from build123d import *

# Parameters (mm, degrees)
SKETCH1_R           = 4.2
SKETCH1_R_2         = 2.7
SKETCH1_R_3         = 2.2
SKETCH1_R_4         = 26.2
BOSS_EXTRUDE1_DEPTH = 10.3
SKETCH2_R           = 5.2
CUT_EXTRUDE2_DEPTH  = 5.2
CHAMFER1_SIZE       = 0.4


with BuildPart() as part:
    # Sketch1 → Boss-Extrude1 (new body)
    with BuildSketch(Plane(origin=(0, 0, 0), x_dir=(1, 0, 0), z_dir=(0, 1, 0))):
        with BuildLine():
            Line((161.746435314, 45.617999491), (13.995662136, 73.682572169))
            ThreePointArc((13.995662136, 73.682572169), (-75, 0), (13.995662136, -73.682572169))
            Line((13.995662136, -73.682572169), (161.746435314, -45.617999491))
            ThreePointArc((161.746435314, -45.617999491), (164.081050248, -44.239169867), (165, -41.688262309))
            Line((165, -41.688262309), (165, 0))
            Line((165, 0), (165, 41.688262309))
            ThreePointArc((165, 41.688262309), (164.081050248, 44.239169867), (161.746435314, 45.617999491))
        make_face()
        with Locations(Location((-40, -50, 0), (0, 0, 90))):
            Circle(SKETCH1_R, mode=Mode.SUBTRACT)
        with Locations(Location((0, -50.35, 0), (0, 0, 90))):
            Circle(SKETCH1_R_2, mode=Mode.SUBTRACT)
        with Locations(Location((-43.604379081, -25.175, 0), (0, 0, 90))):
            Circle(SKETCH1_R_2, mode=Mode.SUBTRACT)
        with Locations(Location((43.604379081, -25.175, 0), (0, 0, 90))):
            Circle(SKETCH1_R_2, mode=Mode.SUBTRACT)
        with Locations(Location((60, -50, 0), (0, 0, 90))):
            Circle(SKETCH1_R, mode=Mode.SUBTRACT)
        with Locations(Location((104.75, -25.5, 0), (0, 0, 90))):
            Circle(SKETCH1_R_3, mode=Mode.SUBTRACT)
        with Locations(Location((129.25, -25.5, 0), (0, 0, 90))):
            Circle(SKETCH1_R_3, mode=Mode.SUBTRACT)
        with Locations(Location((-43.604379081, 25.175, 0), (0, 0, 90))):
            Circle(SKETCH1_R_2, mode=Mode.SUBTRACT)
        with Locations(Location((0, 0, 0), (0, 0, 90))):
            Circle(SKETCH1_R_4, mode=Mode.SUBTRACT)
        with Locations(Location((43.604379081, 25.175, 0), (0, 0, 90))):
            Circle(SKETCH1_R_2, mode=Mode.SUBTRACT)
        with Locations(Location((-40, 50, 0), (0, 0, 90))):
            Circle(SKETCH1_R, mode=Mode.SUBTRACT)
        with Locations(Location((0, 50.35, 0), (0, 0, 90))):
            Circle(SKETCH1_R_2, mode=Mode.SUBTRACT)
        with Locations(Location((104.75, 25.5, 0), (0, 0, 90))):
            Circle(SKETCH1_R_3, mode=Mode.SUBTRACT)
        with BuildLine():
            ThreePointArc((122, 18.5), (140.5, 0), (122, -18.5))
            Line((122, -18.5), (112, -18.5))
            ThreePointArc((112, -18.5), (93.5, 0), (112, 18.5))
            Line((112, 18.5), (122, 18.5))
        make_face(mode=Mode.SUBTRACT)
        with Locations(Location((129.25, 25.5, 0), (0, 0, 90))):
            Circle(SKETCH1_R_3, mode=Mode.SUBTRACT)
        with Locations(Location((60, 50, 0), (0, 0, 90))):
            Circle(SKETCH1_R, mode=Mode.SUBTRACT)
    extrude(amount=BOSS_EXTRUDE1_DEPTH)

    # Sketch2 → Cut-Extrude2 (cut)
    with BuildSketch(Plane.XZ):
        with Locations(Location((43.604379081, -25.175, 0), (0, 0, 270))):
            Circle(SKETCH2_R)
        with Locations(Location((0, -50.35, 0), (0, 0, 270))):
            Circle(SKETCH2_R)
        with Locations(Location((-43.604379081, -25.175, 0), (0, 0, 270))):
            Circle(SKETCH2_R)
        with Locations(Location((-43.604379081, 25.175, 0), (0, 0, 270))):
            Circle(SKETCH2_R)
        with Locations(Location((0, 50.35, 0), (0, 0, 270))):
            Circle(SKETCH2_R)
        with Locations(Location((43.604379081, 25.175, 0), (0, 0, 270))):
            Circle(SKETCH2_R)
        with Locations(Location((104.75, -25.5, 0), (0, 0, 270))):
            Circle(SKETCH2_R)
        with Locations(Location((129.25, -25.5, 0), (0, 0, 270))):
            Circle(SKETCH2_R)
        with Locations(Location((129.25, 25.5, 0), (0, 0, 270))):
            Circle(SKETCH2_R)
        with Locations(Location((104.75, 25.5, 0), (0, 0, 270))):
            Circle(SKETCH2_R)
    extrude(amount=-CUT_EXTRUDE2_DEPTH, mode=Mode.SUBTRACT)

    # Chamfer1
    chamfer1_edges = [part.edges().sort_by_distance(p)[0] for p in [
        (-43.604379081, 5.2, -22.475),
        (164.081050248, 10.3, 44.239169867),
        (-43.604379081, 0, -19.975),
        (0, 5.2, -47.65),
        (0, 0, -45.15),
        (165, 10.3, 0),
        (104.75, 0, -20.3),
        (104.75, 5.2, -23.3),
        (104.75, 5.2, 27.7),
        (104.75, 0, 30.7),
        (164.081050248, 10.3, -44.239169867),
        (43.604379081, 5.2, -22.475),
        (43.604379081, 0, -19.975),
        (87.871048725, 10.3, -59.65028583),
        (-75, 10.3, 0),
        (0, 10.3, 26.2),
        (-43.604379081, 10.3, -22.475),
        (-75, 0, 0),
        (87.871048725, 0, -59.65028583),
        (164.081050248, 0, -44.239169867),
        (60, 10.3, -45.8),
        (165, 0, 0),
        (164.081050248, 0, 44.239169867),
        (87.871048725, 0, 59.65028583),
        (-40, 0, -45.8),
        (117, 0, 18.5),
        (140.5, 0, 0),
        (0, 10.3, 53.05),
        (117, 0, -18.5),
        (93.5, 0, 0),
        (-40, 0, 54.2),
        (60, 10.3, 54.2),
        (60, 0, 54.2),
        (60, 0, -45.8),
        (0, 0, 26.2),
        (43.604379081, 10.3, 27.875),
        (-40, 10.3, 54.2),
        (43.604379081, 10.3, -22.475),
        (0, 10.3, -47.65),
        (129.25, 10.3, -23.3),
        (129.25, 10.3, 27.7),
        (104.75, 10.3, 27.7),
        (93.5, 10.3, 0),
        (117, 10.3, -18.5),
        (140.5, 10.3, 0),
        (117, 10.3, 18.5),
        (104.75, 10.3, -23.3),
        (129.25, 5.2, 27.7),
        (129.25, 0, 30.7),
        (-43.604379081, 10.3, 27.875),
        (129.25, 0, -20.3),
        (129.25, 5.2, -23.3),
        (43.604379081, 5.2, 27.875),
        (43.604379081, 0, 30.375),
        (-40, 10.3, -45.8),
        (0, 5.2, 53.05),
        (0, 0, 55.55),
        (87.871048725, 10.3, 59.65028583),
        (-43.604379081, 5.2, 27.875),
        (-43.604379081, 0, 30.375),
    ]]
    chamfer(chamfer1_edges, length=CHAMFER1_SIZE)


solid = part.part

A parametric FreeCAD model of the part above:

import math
import FreeCAD as App
import Part
import Sketcher

V = App.Vector


def edges_at(feature, points):
    """Names of the edges that pass closest to the given points."""
    edges = feature.Shape.Edges
    near = lambda p: min(range(len(edges)), key=lambda i: edges[i].distToShape(Part.Vertex(*p))[0])
    return sorted({f"Edge{near(p) + 1}" for p in points})

doc = App.newDocument("Part")
body = doc.addObject("PartDesign::Body", "Body")

# Sketch on XZ plane
sketch1 = body.newObject("Sketcher::SketchObject", "Sketch")
sketch1.AttachmentSupport = (doc.getObject("XZ_Plane"), [""])
sketch1.MapMode = "FlatFace"
sketch1.addGeometry([
    Part.LineSegment(V(161.7, -45.6, 0), V(14, -73.7, 0)),  # 0
    Part.ArcOfCircle(Part.Circle(V(0, 0, 0), V(0, 0, 1), 75), math.radians(79), math.radians(281)),  # 1
    Part.LineSegment(V(14, 73.7, 0), V(161.7, 45.6, 0)),  # 2
    Part.ArcOfCircle(Part.Circle(V(161, 41.7, 0), V(0, 0, 1), 4), math.radians(0), math.radians(79)),  # 3
    Part.LineSegment(V(165, 41.7, 0), V(165, -41.7, 0)),  # 4
    Part.ArcOfCircle(Part.Circle(V(161, -41.7, 0), V(0, 0, 1), 4), math.radians(-79), math.radians(0)),  # 5
    Part.Circle(V(-40, 50, 0), V(0, 0, 1), 4.2),  # 6
    Part.Circle(V(0, 50.4, 0), V(0, 0, 1), 2.7),  # 7
    Part.Circle(V(-43.6, 25.2, 0), V(0, 0, 1), 2.7),  # 8
    Part.Circle(V(43.6, 25.2, 0), V(0, 0, 1), 2.7),  # 9
    Part.Circle(V(60, 50, 0), V(0, 0, 1), 4.2),  # 10
    Part.Circle(V(104.8, 25.5, 0), V(0, 0, 1), 2.2),  # 11
    Part.Circle(V(129.2, 25.5, 0), V(0, 0, 1), 2.2),  # 12
    Part.Circle(V(0, 0, 0), V(0, 0, 1), 26.2),  # 13
    Part.Circle(V(-43.6, -25.2, 0), V(0, 0, 1), 2.7),  # 14
    Part.Circle(V(43.6, -25.2, 0), V(0, 0, 1), 2.7),  # 15
    Part.Circle(V(-40, -50, 0), V(0, 0, 1), 4.2),  # 16
    Part.Circle(V(0, -50.4, 0), V(0, 0, 1), 2.7),  # 17
    Part.LineSegment(V(112, -18.5, 0), V(122, -18.5, 0)),  # 18
    Part.ArcOfCircle(Part.Circle(V(122, 0, 0), V(0, 0, 1), 18.5), math.radians(-90), math.radians(90)),  # 19
    Part.LineSegment(V(122, 18.5, 0), V(112, 18.5, 0)),  # 20
    Part.ArcOfCircle(Part.Circle(V(112, 0, 0), V(0, 0, 1), 18.5), math.radians(90), math.radians(270)),  # 21
    Part.Circle(V(104.8, -25.5, 0), V(0, 0, 1), 2.2),  # 22
    Part.Circle(V(129.2, -25.5, 0), V(0, 0, 1), 2.2),  # 23
    Part.Circle(V(60, -50, 0), V(0, 0, 1), 4.2),  # 24
], False)
sketch1.addConstraint([
    Sketcher.Constraint("Tangent", 0, 2, 1, 2),
    Sketcher.Constraint("Tangent", 1, 1, 2, 1),
    Sketcher.Constraint("Tangent", 2, 2, 3, 2),
    Sketcher.Constraint("Tangent", 3, 1, 4, 1),
    Sketcher.Constraint("Tangent", 4, 2, 5, 2),
    Sketcher.Constraint("Tangent", 5, 1, 0, 1),
    Sketcher.Constraint("Tangent", 18, 2, 19, 1),
    Sketcher.Constraint("Tangent", 19, 2, 20, 1),
    Sketcher.Constraint("Tangent", 20, 2, 21, 1),
    Sketcher.Constraint("Tangent", 21, 2, 18, 1),
    Sketcher.Constraint("Vertical", 4),
    Sketcher.Constraint("Horizontal", 18),
    Sketcher.Constraint("Horizontal", 20),
    Sketcher.Constraint("Coincident", 1, 3, -1, 1),
    Sketcher.Constraint("Coincident", 13, 3, -1, 1),
    Sketcher.Constraint("Equal", 3, 5),
    Sketcher.Constraint("Equal", 7, 8),
    Sketcher.Constraint("Equal", 8, 9),
    Sketcher.Constraint("Equal", 6, 10),
    Sketcher.Constraint("Equal", 11, 12),
    Sketcher.Constraint("Equal", 9, 14),
    Sketcher.Constraint("Equal", 14, 15),
    Sketcher.Constraint("Equal", 10, 16),
    Sketcher.Constraint("Equal", 15, 17),
    Sketcher.Constraint("Equal", 12, 22),
    Sketcher.Constraint("Equal", 22, 23),
    Sketcher.Constraint("Equal", 16, 24),
    Sketcher.Constraint("Symmetric", 9, 3, 14, 3, -1, 1),
    Sketcher.Constraint("Symmetric", 8, 3, 15, 3, -1, 1),
    Sketcher.Constraint("Symmetric", 7, 3, 17, 3, -1, 1),
    Sketcher.Constraint("Symmetric", 8, 3, 9, 3, -2),
    Sketcher.Constraint("Symmetric", 6, 3, 16, 3, -1),
    Sketcher.Constraint("Symmetric", 11, 3, 22, 3, -1),
    Sketcher.Constraint("Symmetric", 12, 3, 23, 3, -1),
    Sketcher.Constraint("Symmetric", 10, 3, 24, 3, -1),
    Sketcher.Constraint("PointOnObject", 7, 3, -2),
    Sketcher.Constraint("PointOnObject", 19, 3, -1),
    Sketcher.Constraint("Horizontal", 6, 3, 10, 3),
    Sketcher.Constraint("Horizontal", 11, 3, 12, 3),
    Sketcher.Constraint("Vertical", 0, 2, 1, 1),
    Sketcher.Constraint("Radius", 1, 75.0),
    Sketcher.Constraint("Radius", 3, 4.0),
    Sketcher.Constraint("Diameter", 6, 8.4),
    Sketcher.Constraint("Diameter", 7, 5.4),
    Sketcher.Constraint("Diameter", 11, 4.4),
    Sketcher.Constraint("Diameter", 13, 52.4),
    Sketcher.Constraint("Radius", 19, 18.5),
    Sketcher.Constraint("DistanceX", 18, 1, 18, 2, 10.0),
    Sketcher.Constraint("DistanceX", -1, 1, 3, 3, 161.0),
    Sketcher.Constraint("DistanceX", 6, 3, -1, 1, 40.0),
    Sketcher.Constraint("DistanceY", -1, 1, 6, 3, 50.0),
    Sketcher.Constraint("DistanceX", -1, 1, 10, 3, 60.0),
    Sketcher.Constraint("DistanceX", -1, 1, 19, 3, 122.0),
    Sketcher.Constraint("DistanceY", 22, 3, 11, 3, 51.0),
    Sketcher.Constraint("DistanceX", 11, 3, 12, 3, 24.5),
    Sketcher.Constraint("DistanceY", -1, 1, 7, 3, 50.35),
    Sketcher.Constraint("DistanceX", -1, 1, 11, 3, 104.75),
    Sketcher.Constraint("DistanceY", 14, 3, 8, 3, 50.35),
    Sketcher.Constraint("DistanceY", -1, 1, 2, 2, 45.617999),
    Sketcher.Constraint("DistanceX", 8, 3, -1, 1, 43.604379),
])
pad1 = body.newObject("PartDesign::Pad", "Pad")
pad1.Profile = sketch1
pad1.Length = 10.3
pad1.Reversed = True

# Sketch on XZ plane
sketch2 = body.newObject("Sketcher::SketchObject", "Sketch001")
sketch2.AttachmentSupport = (doc.getObject("XZ_Plane"), [""])
sketch2.MapMode = "FlatFace"
sketch2.addGeometry([
    Part.Circle(V(44, -25, 0), V(0, 0, 1), 5),  # 0
    Part.Circle(V(0, -50, 0), V(0, 0, 1), 5),  # 1
    Part.Circle(V(-44, -25, 0), V(0, 0, 1), 5),  # 2
    Part.Circle(V(-44, 25, 0), V(0, 0, 1), 5),  # 3
    Part.Circle(V(0, 50, 0), V(0, 0, 1), 5),  # 4
    Part.Circle(V(44, 25, 0), V(0, 0, 1), 5),  # 5
    Part.Circle(V(105, -26, 0), V(0, 0, 1), 5),  # 6
    Part.Circle(V(129, -26, 0), V(0, 0, 1), 5),  # 7
    Part.Circle(V(129, 26, 0), V(0, 0, 1), 5),  # 8
    Part.Circle(V(105, 26, 0), V(0, 0, 1), 5),  # 9
], False)
sketch2.addConstraint([
    Sketcher.Constraint("Equal", 0, 1),
    Sketcher.Constraint("Equal", 1, 2),
    Sketcher.Constraint("Equal", 2, 3),
    Sketcher.Constraint("Equal", 3, 4),
    Sketcher.Constraint("Equal", 4, 5),
    Sketcher.Constraint("Equal", 5, 6),
    Sketcher.Constraint("Equal", 6, 7),
    Sketcher.Constraint("Equal", 7, 8),
    Sketcher.Constraint("Equal", 8, 9),
    Sketcher.Constraint("Symmetric", 0, 3, 3, 3, -1, 1),
    Sketcher.Constraint("Symmetric", 1, 3, 4, 3, -1, 1),
    Sketcher.Constraint("Symmetric", 2, 3, 5, 3, -1, 1),
    Sketcher.Constraint("Symmetric", 0, 3, 2, 3, -2),
    Sketcher.Constraint("Symmetric", 7, 3, 8, 3, -1),
    Sketcher.Constraint("Symmetric", 6, 3, 9, 3, -1),
    Sketcher.Constraint("PointOnObject", 1, 3, -2),
    Sketcher.Constraint("Horizontal", 6, 3, 7, 3),
    Sketcher.Constraint("Diameter", 0, 10.4),
    Sketcher.Constraint("DistanceY", 7, 3, 8, 3, 51.0),
    Sketcher.Constraint("DistanceY", 1, 3, 4, 3, 100.7),
    Sketcher.Constraint("DistanceX", 6, 3, 7, 3, 24.5),
    Sketcher.Constraint("DistanceX", -1, 1, 6, 3, 104.75),
    Sketcher.Constraint("DistanceY", 2, 3, 3, 3, 50.35),
    Sketcher.Constraint("DistanceX", -1, 1, 0, 3, 43.604379),
])
pocket1 = body.newObject("PartDesign::Pocket", "Pocket")
pocket1.Profile = sketch2
pocket1.Length = 5.2
doc.recompute()

chamfer = body.newObject("PartDesign::Chamfer", "Chamfer")
chamfer.Base = (pocket1, edges_at(pocket1, [
    (-43.604, 5.2, -22.475),
    (164.081, 10.3, 44.239),
    (-43.604, 0, -19.975),
    (0, 5.2, -47.65),
    (0, 0, -45.15),
    (165, 10.3, 0),
    (104.75, 0, -20.3),
    (104.75, 5.2, -23.3),
    (104.75, 5.2, 27.7),
    (104.75, 0, 30.7),
    (164.081, 10.3, -44.239),
    (43.604, 5.2, -22.475),
    (43.604, 0, -19.975),
    (87.871, 10.3, -59.65),
    (-75, 10.3, 0),
    (0, 10.3, 26.2),
    (-43.604, 10.3, -22.475),
    (-75, 0, 0),
    (87.871, 0, -59.65),
    (164.081, 0, -44.239),
    (60, 10.3, -45.8),
    (165, 0, 0),
    (164.081, 0, 44.239),
    (87.871, 0, 59.65),
    (-40, 0, -45.8),
    (117, 0, 18.5),
    (140.5, 0, 0),
    (0, 10.3, 53.05),
    (117, 0, -18.5),
    (93.5, 0, 0),
    (-40, 0, 54.2),
    (60, 10.3, 54.2),
    (60, 0, 54.2),
    (60, 0, -45.8),
    (0, 0, 26.2),
    (43.604, 10.3, 27.875),
    (-40, 10.3, 54.2),
    (43.604, 10.3, -22.475),
    (0, 10.3, -47.65),
    (129.25, 10.3, -23.3),
    (129.25, 10.3, 27.7),
    (104.75, 10.3, 27.7),
    (93.5, 10.3, 0),
    (117, 10.3, -18.5),
    (140.5, 10.3, 0),
    (117, 10.3, 18.5),
    (104.75, 10.3, -23.3),
    (129.25, 5.2, 27.7),
    (129.25, 0, 30.7),
    (-43.604, 10.3, 27.875),
    (129.25, 0, -20.3),
    (129.25, 5.2, -23.3),
    (43.604, 5.2, 27.875),
    (43.604, 0, 30.375),
    (-40, 10.3, -45.8),
    (0, 5.2, 53.05),
    (0, 0, 55.55),
    (87.871, 10.3, 59.65),
    (-43.604, 5.2, 27.875),
    (-43.604, 0, 30.375),
]))
chamfer.Size = 0.4

doc.recompute()
